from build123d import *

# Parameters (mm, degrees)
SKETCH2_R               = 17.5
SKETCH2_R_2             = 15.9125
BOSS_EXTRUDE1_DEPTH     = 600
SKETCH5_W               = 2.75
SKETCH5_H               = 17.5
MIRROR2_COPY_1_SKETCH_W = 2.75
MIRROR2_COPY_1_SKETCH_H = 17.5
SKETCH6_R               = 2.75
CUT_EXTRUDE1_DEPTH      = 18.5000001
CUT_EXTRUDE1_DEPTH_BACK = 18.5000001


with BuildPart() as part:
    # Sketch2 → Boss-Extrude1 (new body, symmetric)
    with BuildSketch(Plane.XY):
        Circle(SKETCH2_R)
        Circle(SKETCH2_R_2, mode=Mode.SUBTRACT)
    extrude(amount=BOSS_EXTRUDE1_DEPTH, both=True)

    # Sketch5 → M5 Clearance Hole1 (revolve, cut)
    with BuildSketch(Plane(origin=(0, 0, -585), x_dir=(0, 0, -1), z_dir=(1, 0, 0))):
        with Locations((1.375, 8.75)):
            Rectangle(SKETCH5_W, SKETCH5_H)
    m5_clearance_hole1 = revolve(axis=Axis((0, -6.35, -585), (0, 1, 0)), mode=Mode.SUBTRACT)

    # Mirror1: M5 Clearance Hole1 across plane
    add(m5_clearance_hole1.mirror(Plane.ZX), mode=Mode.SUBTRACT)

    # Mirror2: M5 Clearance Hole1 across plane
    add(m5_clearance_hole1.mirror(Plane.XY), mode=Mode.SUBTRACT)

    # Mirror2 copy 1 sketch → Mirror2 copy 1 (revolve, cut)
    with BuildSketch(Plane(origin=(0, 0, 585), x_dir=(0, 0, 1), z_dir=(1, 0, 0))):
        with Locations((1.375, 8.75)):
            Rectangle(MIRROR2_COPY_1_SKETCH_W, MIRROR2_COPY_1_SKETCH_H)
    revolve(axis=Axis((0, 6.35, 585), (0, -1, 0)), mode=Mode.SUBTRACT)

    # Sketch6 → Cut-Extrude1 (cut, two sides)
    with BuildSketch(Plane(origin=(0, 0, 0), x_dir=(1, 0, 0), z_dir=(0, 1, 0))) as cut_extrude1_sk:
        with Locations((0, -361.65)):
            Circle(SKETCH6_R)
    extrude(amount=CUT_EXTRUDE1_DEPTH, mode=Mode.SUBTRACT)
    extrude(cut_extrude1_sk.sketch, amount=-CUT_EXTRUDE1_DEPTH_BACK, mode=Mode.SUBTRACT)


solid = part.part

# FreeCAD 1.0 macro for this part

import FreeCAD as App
import Part
import Sketcher


def add_polygon(sketch, points):
    """Adds a closed chain of lines whose ends are joined by coincident constraints."""
    first, n = sketch.GeometryCount, len(points)
    for a, b in zip(points, points[1:] + points[:1]):
        sketch.addGeometry(Part.LineSegment(App.Vector(*a, 0), App.Vector(*b, 0)), False)
    for i in range(n):
        sketch.addConstraint(Sketcher.Constraint("Coincident", first + i, 2, first + (i + 1) % n, 1))

doc = App.newDocument("Part")
body = doc.addObject("PartDesign::Body", "Body")

# Sketch on XY plane
sketch1 = doc.addObject("Sketcher::SketchObject", "Sketch")
body.addObject(sketch1)
sketch1.AttachmentSupport = (doc.XY_Plane, [""])
sketch1.MapMode = "FlatFace"
sketch1.addGeometry(Part.Circle(App.Vector(0, 0, 0), App.Vector(0, 0, 1), 18), False)
sketch1.addGeometry(Part.Circle(App.Vector(0, 0, 0), App.Vector(0, 0, 1), 16), False)
sketch1.addConstraint(Sketcher.Constraint("Coincident", 0, 3, -1, 1))
sketch1.addConstraint(Sketcher.Constraint("Coincident", 1, 3, -1, 1))
sketch1.addConstraint(Sketcher.Constraint("Diameter", 0, 35.0))
sketch1.addConstraint(Sketcher.Constraint("Diameter", 1, 31.825))
pad1 = doc.addObject("PartDesign::Pad", "Pad")
body.addObject(pad1)
pad1.Profile = sketch1
pad1.Length = 1200
pad1.Midplane = True

# Sketch on YZ plane
sketch2 = doc.addObject("Sketcher::SketchObject", "Sketch001")
body.addObject(sketch2)
sketch2.AttachmentSupport = (doc.YZ_Plane, [""])
sketch2.MapMode = "FlatFace"
add_polygon(sketch2, [(17.5, -585), (0, -585), (0, -587.8), (17.5, -587.8)])  # lines 0-3
sketch2.addGeometry(Part.LineSegment(App.Vector(0, -585, 0), App.Vector(17.5, -585, 0)), True)  # axis
sketch2.addConstraint(Sketcher.Constraint("Horizontal", 0))
sketch2.addConstraint(Sketcher.Constraint("Vertical", 1))
sketch2.addConstraint(Sketcher.Constraint("Horizontal", 2))
sketch2.addConstraint(Sketcher.Constraint("Vertical", 3))
sketch2.addConstraint(Sketcher.Constraint("Horizontal", 4))
sketch2.addConstraint(Sketcher.Constraint("Coincident", 4, 1, 0, 2))
sketch2.addConstraint(Sketcher.Constraint("PointOnObject", 0, 2, -2))
sketch2.addConstraint(Sketcher.Constraint("Vertical", 2, 2, 4, 2))
sketch2.addConstraint(Sketcher.Constraint("DistanceX", 0, 2, 0, 1, 17.5))
sketch2.addConstraint(Sketcher.Constraint("DistanceY", 0, 2, -1, 1, 585.0))
sketch2.addConstraint(Sketcher.Constraint("DistanceY", 1, 2, 1, 1, 2.75))
groove = doc.addObject("PartDesign::Groove", "Groove")
body.addObject(groove)
groove.Profile = sketch2
groove.ReferenceAxis = (sketch2, ["Axis0"])
groove.Angle = 360
doc.recompute()

mirrored = doc.addObject("PartDesign::Mirrored", "Mirrored")
body.addObject(mirrored)
mirrored.Originals = [groove]
mirrored.MirrorPlane = (doc.XZ_Plane, [""])
body.Tip = mirrored
doc.recompute()

mirrored2 = doc.addObject("PartDesign::Mirrored", "Mirrored001")
body.addObject(mirrored2)
mirrored2.Originals = [groove]
mirrored2.MirrorPlane = (doc.XY_Plane, [""])
body.Tip = mirrored2

# Sketch on YZ plane
sketch3 = doc.addObject("Sketcher::SketchObject", "Sketch002")
body.addObject(sketch3)
sketch3.AttachmentSupport = (doc.YZ_Plane, [""])
sketch3.MapMode = "FlatFace"
add_polygon(sketch3, [(-17.5, 585), (0, 585), (0, 587.8), (-17.5, 587.8)])  # lines 0-3
sketch3.addGeometry(Part.LineSegment(App.Vector(0, 585, 0), App.Vector(-17.5, 585, 0)), True)  # axis
sketch3.addConstraint(Sketcher.Constraint("Horizontal", 0))
sketch3.addConstraint(Sketcher.Constraint("Vertical", 1))
sketch3.addConstraint(Sketcher.Constraint("Horizontal", 2))
sketch3.addConstraint(Sketcher.Constraint("Vertical", 3))
sketch3.addConstraint(Sketcher.Constraint("Horizontal", 4))
sketch3.addConstraint(Sketcher.Constraint("Coincident", 4, 1, 0, 2))
sketch3.addConstraint(Sketcher.Constraint("PointOnObject", 0, 2, -2))
sketch3.addConstraint(Sketcher.Constraint("Vertical", 2, 2, 4, 2))
sketch3.addConstraint(Sketcher.Constraint("DistanceX", 0, 1, 0, 2, 17.5))
sketch3.addConstraint(Sketcher.Constraint("DistanceY", -1, 1, 0, 2, 585.0))
sketch3.addConstraint(Sketcher.Constraint("DistanceY", 1, 1, 1, 2, 2.75))
groove2 = doc.addObject("PartDesign::Groove", "Groove001")
body.addObject(groove2)
groove2.Profile = sketch3
groove2.ReferenceAxis = (sketch3, ["Axis0"])
groove2.Angle = 360

# Sketch on XZ plane
sketch4 = doc.addObject("Sketcher::SketchObject", "Sketch003")
body.addObject(sketch4)
sketch4.AttachmentSupport = (doc.XZ_Plane, [""])
sketch4.MapMode = "FlatFace"
sketch4.addGeometry(Part.Circle(App.Vector(0, 361.6, 0), App.Vector(0, 0, 1), 2.8), False)
sketch4.addConstraint(Sketcher.Constraint("PointOnObject", 0, 3, -2))
sketch4.addConstraint(Sketcher.Constraint("Diameter", 0, 5.5))
sketch4.addConstraint(Sketcher.Constraint("DistanceY", -1, 1, 0, 3, 361.65))
pocket1 = doc.addObject("PartDesign::Pocket", "Pocket")
body.addObject(pocket1)
pocket1.Profile = sketch4
pocket1.Type = "ThroughAll"
pocket1.Midplane = True

doc.recompute()
